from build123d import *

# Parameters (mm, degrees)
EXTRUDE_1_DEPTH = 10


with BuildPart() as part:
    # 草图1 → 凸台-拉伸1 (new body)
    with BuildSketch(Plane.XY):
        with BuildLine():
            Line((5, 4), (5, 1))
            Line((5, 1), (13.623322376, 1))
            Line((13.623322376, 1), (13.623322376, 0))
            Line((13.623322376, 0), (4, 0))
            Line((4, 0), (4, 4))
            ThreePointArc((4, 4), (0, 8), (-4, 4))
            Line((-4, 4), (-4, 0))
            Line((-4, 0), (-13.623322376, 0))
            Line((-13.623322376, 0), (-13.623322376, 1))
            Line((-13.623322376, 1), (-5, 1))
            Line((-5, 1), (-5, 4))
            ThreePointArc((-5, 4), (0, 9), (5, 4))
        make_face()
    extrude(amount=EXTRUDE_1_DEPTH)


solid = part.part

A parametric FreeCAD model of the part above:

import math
import FreeCAD as App
import Part
import Sketcher
from FreeCAD import Vector

doc = App.newDocument("Part")
params = doc.addObject("Spreadsheet::Sheet", "Params")
for row, (alias, value) in enumerate([
    ("sketch1_radius", "5 mm"),
    ("sketch1_radius2", "4 mm"),
    ("sketch1_height", "3 mm"),
    ("sketch1_height2", "1 mm"),
    ("pad1_length", "10 mm"),
], start=1):
    params.set(f"A{row}", alias)
    params.set(f"B{row}", "=" + value)
    params.setAlias(f"B{row}", alias)

body = doc.addObject("PartDesign::Body", "Body")

sketch1 = body.newObject("Sketcher::SketchObject", "Sketch")
sketch1.AttachmentSupport = (doc.getObject("XY_Plane"), [""])
sketch1.MapMode = "FlatFace"
sketch1.addGeometry([
    Part.LineSegment(Vector(5, 1, 0), Vector(5, 4, 0)),
    Part.ArcOfCircle(Part.Circle(Vector(0, 4, 0), Vector(0, 0, 1), 5), math.radians(0), math.radians(180)),
    Part.LineSegment(Vector(-5, 4, 0), Vector(-5, 1, 0)),
    Part.LineSegment(Vector(-5, 1, 0), Vector(-13.623322, 1, 0)),
    Part.LineSegment(Vector(-13.623322, 1, 0), Vector(-13.623322, 0, 0)),
    Part.LineSegment(Vector(-13.623322, 0, 0), Vector(-4, 0, 0)),
    Part.LineSegment(Vector(-4, 0, 0), Vector(-4, 4, 0)),
    Part.ArcOfCircle(Part.Circle(Vector(0, 4, 0), Vector(0, 0, 1), 4), math.radians(0), math.radians(180)),
    Part.LineSegment(Vector(4, 4, 0), Vector(4, 0, 0)),
    Part.LineSegment(Vector(4, 0, 0), Vector(13.623322, 0, 0)),
    Part.LineSegment(Vector(13.623322, 0, 0), Vector(13.623322, 1, 0)),
    Part.LineSegment(Vector(13.623322, 1, 0), Vector(5, 1, 0)),
], False)
sketch1.addConstraint([
    Sketcher.Constraint("Tangent", 0, 2, 1, 1),
    Sketcher.Constraint("Tangent", 1, 2, 2, 1),
    Sketcher.Constraint("Coincident", 2, 2, 3, 1),
    Sketcher.Constraint("Coincident", 3, 2, 4, 1),
    Sketcher.Constraint("Coincident", 4, 2, 5, 1),
    Sketcher.Constraint("Coincident", 5, 2, 6, 1),
    Sketcher.Constraint("Tangent", 6, 2, 7, 2),
    Sketcher.Constraint("Tangent", 7, 1, 8, 1),
    Sketcher.Constraint("Coincident", 8, 2, 9, 1),
    Sketcher.Constraint("Coincident", 9, 2, 10, 1),
    Sketcher.Constraint("Coincident", 10, 2, 11, 1),
    Sketcher.Constraint("Coincident", 11, 2, 0, 1),
    Sketcher.Constraint("Vertical", 0),
    Sketcher.Constraint("Vertical", 2),
    Sketcher.Constraint("Horizontal", 3),
    Sketcher.Constraint("Vertical", 4),
    Sketcher.Constraint("Horizontal", 5),
    Sketcher.Constraint("Vertical", 6),
    Sketcher.Constraint("Vertical", 8),
    Sketcher.Constraint("Horizontal", 9),
    Sketcher.Constraint("Vertical", 10),
    Sketcher.Constraint("Horizontal", 11),
    Sketcher.Constraint("Coincident", 7, 3, 1, 3),
    Sketcher.Constraint("Symmetric", 5, 2, 8, 2, -1, 1),
    Sketcher.Constraint("Symmetric", 4, 2, 9, 2, -2),
    Sketcher.Constraint("Horizontal", 3, 2, 10, 2),
    Sketcher.Constraint("Radius", 1, 5.0),
    Sketcher.Constraint("Radius", 7, 4.0),
    Sketcher.Constraint("DistanceY", 0, 1, 0, 2, 3.0),
    Sketcher.Constraint("DistanceY", 4, 2, 4, 1, 1.0),
    Sketcher.Constraint("DistanceX", 3, 2, 3, 1, 8.623322),
])
sketch1.setExpression("Constraints[26]", "Params.sketch1_radius")
sketch1.setExpression("Constraints[27]", "Params.sketch1_radius2")
sketch1.setExpression("Constraints[28]", "Params.sketch1_height")
sketch1.setExpression("Constraints[29]", "Params.sketch1_height2")
pad1 = body.newObject("PartDesign::Pad", "Pad")
pad1.Profile = sketch1
pad1.setExpression("Length", "Params.pad1_length")

doc.recompute()
